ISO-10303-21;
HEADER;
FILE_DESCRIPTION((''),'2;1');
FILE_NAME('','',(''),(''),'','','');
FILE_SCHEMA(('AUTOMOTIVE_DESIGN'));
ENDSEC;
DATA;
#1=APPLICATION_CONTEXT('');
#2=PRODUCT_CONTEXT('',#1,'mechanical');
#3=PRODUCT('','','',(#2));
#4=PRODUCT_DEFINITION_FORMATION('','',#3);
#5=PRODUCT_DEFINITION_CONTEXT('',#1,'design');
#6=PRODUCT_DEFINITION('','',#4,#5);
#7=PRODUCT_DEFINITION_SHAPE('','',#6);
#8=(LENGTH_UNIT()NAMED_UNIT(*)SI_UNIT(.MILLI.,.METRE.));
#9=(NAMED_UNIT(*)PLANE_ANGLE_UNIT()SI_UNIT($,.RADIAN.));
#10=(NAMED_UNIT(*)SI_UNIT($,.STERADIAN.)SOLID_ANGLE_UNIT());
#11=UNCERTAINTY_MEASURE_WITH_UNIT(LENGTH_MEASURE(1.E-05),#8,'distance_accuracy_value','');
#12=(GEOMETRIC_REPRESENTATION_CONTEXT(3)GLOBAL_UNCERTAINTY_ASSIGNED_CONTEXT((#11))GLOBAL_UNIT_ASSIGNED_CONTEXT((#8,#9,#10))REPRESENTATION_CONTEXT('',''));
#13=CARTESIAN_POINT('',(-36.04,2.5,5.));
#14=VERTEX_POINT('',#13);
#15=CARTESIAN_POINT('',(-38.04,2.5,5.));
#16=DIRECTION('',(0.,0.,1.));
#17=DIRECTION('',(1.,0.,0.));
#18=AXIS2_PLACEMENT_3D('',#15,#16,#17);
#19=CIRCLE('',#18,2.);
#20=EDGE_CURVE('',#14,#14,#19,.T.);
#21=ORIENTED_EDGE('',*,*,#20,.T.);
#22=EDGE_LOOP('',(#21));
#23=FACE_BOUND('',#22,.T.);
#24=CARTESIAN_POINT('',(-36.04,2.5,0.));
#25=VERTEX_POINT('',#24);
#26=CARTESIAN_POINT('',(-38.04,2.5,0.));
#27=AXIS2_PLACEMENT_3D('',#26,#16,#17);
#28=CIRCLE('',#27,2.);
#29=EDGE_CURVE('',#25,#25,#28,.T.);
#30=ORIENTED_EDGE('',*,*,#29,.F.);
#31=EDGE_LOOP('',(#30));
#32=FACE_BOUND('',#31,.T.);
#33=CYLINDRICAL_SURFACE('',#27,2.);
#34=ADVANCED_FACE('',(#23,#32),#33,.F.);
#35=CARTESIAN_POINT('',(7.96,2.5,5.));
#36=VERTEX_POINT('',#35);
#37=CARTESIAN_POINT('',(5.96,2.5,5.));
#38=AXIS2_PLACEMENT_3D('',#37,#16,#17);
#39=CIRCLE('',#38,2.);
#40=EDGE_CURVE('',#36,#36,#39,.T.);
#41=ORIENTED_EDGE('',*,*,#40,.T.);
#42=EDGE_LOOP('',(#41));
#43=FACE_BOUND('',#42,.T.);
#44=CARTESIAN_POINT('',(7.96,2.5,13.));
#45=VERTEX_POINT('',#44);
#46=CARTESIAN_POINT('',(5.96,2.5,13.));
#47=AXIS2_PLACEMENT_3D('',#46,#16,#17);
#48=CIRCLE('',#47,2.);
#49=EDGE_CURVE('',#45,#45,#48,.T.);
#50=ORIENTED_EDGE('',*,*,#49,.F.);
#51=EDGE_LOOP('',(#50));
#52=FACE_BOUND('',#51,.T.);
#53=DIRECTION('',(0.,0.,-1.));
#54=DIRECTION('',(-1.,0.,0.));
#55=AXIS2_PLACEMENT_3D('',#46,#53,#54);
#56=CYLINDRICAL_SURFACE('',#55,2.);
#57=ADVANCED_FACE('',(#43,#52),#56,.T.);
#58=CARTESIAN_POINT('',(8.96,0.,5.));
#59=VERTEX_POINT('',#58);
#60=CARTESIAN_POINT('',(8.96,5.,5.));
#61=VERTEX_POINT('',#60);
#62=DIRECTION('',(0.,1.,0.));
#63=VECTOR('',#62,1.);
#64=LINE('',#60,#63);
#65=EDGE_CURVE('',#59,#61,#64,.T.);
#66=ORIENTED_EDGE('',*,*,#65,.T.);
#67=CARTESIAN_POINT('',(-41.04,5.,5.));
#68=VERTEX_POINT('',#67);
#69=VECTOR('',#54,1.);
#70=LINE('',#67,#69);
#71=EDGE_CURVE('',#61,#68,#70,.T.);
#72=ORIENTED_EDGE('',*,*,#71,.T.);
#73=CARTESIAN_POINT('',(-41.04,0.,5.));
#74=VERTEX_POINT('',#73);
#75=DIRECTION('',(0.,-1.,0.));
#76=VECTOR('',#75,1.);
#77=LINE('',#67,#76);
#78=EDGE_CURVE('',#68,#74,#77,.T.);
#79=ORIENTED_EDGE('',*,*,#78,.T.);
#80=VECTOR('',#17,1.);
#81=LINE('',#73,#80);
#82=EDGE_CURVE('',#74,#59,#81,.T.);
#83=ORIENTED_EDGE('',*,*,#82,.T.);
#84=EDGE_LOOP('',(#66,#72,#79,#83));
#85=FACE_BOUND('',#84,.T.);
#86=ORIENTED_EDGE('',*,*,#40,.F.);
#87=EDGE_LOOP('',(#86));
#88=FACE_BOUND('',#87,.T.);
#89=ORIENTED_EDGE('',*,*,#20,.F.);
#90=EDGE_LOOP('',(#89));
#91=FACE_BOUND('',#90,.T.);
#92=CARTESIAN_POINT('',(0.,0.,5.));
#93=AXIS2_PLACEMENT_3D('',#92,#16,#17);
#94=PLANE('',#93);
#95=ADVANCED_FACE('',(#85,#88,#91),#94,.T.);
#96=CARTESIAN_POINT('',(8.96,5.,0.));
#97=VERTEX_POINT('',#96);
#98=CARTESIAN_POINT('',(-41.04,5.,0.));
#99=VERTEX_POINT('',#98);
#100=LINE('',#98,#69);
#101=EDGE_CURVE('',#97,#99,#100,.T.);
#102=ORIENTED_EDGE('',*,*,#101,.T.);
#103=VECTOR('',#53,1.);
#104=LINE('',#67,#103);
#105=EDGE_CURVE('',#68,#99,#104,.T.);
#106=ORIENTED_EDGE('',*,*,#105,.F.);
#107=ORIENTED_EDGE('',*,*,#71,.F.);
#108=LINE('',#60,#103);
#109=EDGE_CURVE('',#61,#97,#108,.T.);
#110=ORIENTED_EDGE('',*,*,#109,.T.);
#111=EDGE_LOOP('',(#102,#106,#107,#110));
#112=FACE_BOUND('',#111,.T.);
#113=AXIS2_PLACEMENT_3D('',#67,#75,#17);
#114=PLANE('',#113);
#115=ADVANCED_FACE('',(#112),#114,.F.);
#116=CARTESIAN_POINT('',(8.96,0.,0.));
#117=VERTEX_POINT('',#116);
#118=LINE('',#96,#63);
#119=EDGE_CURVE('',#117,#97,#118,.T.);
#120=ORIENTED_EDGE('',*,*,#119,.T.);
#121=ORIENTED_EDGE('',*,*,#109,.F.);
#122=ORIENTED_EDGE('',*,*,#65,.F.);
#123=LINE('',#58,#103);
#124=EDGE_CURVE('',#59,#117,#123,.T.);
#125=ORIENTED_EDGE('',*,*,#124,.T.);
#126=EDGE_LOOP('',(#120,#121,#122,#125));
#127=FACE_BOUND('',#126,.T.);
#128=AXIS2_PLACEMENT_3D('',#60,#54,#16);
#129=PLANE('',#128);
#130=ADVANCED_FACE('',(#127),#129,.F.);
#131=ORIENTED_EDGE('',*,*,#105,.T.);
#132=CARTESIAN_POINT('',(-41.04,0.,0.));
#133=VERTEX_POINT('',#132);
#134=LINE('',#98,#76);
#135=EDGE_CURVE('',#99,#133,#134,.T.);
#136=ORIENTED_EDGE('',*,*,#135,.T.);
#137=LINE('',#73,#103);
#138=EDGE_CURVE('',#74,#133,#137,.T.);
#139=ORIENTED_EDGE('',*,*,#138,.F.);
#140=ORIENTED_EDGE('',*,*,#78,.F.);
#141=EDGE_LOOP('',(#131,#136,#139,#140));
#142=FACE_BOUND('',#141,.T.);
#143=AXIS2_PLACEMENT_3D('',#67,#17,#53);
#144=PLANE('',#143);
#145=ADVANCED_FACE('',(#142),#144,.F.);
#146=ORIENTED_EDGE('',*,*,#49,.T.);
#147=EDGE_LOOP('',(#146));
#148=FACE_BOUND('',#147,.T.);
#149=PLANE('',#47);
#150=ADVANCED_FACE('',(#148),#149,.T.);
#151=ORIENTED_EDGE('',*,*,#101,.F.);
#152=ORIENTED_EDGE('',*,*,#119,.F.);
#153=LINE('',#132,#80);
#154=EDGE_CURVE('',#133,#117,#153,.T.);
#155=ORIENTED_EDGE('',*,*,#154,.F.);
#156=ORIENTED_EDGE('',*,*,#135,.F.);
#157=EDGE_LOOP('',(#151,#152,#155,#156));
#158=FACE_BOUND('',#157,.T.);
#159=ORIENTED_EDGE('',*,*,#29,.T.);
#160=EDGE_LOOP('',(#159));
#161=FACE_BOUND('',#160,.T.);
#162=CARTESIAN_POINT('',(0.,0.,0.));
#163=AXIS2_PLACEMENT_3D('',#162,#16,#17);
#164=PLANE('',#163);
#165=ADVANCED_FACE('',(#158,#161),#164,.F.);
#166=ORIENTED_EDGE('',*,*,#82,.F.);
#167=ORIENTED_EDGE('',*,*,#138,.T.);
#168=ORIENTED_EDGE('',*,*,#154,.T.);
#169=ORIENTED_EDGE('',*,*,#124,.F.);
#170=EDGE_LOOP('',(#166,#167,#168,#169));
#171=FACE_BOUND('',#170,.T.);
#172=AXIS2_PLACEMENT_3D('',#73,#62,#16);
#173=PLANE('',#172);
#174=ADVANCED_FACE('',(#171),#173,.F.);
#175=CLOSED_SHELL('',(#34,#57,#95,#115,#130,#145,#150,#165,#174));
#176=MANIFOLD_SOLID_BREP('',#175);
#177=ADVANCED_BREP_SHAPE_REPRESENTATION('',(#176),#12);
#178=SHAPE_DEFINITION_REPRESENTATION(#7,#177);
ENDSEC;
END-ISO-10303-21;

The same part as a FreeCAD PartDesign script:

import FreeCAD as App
import Part
import Sketcher

V = App.Vector


def add_polygon(sketch, points):
    """Adds a closed chain of lines whose ends are joined by coincident constraints."""
    first, n = sketch.GeometryCount, len(points)
    for a, b in zip(points, points[1:] + points[:1]):
        sketch.addGeometry(Part.LineSegment(App.Vector(*a, 0), App.Vector(*b, 0)), False)
    for i in range(n):
        sketch.addConstraint(Sketcher.Constraint("Coincident", first + i, 2, first + (i + 1) % n, 1))

doc = App.newDocument("Part")
body = doc.addObject("PartDesign::Body", "Body")

# Sketch on XY plane
sketch1 = body.newObject("Sketcher::SketchObject", "Sketch")
sketch1.AttachmentSupport = (doc.getObject("XY_Plane"), [""])
sketch1.MapMode = "FlatFace"
add_polygon(sketch1, [(-41, 5), (-41, 0), (9, 0), (9, 5)])  # lines 0-3
sketch1.addConstraint(Sketcher.Constraint("Vertical", 0))
sketch1.addConstraint(Sketcher.Constraint("Horizontal", 1))
sketch1.addConstraint(Sketcher.Constraint("Vertical", 2))
sketch1.addConstraint(Sketcher.Constraint("Horizontal", 3))
sketch1.addConstraint(Sketcher.Constraint("PointOnObject", 0, 2, -1))
sketch1.addConstraint(Sketcher.Constraint("DistanceX", 1, 1, 1, 2, 50.0))
sketch1.addConstraint(Sketcher.Constraint("DistanceY", 0, 2, 0, 1, 5.0))
sketch1.addConstraint(Sketcher.Constraint("DistanceX", 0, 2, -1, 1, 41.04))
pad1 = body.newObject("PartDesign::Pad", "Pad")
pad1.Profile = sketch1
pad1.Length = 5

# Sketch on XY plane
sketch2 = body.newObject("Sketcher::SketchObject", "Sketch001")
sketch2.AttachmentSupport = (doc.getObject("XY_Plane"), [""])
sketch2.MapMode = "FlatFace"
sketch2.AttachmentOffset = App.Placement(V(0, 0, 5), App.Rotation())
sketch2.addGeometry(Part.Circle(V(-38, 2.5, 0), V(0, 0, 1), 2), False)
sketch2.addConstraint(Sketcher.Constraint("Diameter", 0, 4.0))
sketch2.addConstraint(Sketcher.Constraint("DistanceY", -1, 1, 0, 3, 2.5))
sketch2.addConstraint(Sketcher.Constraint("DistanceX", 0, 3, -1, 1, 38.04))
pocket1 = body.newObject("PartDesign::Pocket", "Pocket")
pocket1.Profile = sketch2
pocket1.Length = 5

# Sketch on XY plane
sketch3 = body.newObject("Sketcher::SketchObject", "Sketch002")
sketch3.AttachmentSupport = (doc.getObject("XY_Plane"), [""])
sketch3.MapMode = "FlatFace"
sketch3.AttachmentOffset = App.Placement(V(0, 0, 5), App.Rotation())
sketch3.addGeometry(Part.Circle(V(6, 2.5, 0), V(0, 0, 1), 2), False)
sketch3.addConstraint(Sketcher.Constraint("Diameter", 0, 4.0))
sketch3.addConstraint(Sketcher.Constraint("DistanceY", -1, 1, 0, 3, 2.5))
sketch3.addConstraint(Sketcher.Constraint("DistanceX", -1, 1, 0, 3, 5.96))
pad2 = body.newObject("PartDesign::Pad", "Pad001")
pad2.Profile = sketch3
pad2.Length = 8

doc.recompute()
